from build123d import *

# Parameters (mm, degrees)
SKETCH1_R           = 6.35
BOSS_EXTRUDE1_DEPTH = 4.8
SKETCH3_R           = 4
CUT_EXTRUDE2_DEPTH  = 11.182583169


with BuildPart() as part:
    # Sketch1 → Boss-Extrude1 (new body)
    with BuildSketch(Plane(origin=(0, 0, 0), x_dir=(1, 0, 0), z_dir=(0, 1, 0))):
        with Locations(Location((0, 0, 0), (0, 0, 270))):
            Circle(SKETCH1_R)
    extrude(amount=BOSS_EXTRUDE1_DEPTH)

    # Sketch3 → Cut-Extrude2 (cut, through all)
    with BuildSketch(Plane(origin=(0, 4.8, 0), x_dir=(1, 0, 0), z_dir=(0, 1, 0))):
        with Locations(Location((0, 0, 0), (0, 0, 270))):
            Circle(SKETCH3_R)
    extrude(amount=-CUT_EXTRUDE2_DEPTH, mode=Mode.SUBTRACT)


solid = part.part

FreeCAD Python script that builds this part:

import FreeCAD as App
import Part
import Sketcher
from FreeCAD import Vector
Q = App.Units.Quantity

doc = App.newDocument("Part")
body = doc.addObject("PartDesign::Body", "Body")

# Sketch on XZ plane
sketch1 = body.newObject("Sketcher::SketchObject", "Sketch")
sketch1.AttachmentSupport = (doc.getObject("XZ_Plane"), [""])
sketch1.MapMode = "FlatFace"
sketch1.addGeometry(Part.Circle(Vector(0, 0, 0), Vector(0, 0, 1), 6), False)
sketch1.addConstraint([
    Sketcher.Constraint("Coincident", 0, 3, -1, 1),
    Sketcher.Constraint("Diameter", 0, Q("12.7 mm")),
])
pad1 = body.newObject("PartDesign::Pad", "Pad")
pad1.Profile = sketch1
pad1.Length = 4.8
pad1.Reversed = True

# Sketch on XZ plane
sketch2 = body.newObject("Sketcher::SketchObject", "Sketch001")
sketch2.AttachmentSupport = (doc.getObject("XZ_Plane"), [""])
sketch2.MapMode = "FlatFace"
sketch2.AttachmentOffset = App.Placement(Vector(0, 0, -4.8), App.Rotation())
sketch2.addGeometry(Part.Circle(Vector(0, 0, 0), Vector(0, 0, 1), 4), False)
sketch2.addConstraint([
    Sketcher.Constraint("Coincident", 0, 3, -1, 1),
    Sketcher.Constraint("Diameter", 0, Q("8 mm")),
])
pocket1 = body.newObject("PartDesign::Pocket", "Pocket")
pocket1.Profile = sketch2
pocket1.Type = "ThroughAll"
pocket1.Reversed = True

doc.recompute()
